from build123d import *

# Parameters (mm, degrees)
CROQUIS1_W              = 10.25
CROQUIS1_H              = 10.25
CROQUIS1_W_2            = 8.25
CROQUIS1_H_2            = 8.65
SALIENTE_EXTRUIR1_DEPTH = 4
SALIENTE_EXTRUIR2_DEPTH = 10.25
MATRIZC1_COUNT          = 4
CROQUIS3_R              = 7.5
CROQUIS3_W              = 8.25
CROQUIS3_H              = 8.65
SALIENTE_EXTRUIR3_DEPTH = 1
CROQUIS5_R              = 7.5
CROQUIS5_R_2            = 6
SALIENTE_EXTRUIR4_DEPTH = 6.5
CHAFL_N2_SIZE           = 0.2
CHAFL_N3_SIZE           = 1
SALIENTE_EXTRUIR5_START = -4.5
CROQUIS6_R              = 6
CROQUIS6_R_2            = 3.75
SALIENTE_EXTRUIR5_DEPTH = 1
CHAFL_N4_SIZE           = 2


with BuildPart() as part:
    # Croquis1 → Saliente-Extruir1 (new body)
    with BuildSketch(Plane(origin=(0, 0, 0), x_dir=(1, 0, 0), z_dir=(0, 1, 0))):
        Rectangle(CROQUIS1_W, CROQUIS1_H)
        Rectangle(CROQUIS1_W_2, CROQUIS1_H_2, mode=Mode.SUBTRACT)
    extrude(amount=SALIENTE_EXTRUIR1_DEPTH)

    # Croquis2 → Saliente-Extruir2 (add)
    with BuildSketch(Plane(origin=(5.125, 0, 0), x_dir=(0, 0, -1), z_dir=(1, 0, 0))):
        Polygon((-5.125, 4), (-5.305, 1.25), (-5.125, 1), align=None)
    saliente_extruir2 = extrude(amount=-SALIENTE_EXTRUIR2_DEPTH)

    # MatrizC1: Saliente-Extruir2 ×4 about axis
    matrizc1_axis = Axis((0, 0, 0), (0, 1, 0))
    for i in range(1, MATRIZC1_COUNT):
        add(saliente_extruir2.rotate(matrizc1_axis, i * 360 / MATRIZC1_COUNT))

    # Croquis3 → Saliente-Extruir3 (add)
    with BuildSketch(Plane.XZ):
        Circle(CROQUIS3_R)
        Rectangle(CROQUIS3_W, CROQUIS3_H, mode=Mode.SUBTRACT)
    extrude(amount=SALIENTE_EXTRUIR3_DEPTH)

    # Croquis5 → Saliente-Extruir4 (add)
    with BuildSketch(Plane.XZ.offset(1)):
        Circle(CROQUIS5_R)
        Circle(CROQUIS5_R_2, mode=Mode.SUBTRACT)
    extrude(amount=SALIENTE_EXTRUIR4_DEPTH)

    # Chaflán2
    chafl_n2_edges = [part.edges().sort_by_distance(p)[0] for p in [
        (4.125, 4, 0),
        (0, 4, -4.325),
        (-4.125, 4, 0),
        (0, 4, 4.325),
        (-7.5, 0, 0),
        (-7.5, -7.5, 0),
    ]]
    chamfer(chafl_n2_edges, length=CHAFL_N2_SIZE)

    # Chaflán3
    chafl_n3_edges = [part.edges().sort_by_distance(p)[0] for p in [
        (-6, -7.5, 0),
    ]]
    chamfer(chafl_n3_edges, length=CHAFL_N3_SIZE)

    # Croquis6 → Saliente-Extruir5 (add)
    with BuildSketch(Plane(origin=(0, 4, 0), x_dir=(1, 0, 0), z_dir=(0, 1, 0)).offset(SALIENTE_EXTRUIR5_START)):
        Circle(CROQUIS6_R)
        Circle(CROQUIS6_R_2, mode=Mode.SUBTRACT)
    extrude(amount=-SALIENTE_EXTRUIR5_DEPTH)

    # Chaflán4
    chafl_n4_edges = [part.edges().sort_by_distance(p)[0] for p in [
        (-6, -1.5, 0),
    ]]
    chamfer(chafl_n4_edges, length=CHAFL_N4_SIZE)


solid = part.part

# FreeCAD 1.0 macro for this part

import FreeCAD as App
import Part
import Sketcher

V = App.Vector


def edges_at(feature, points):
    """Names of the edges that pass closest to the given points."""
    edges = feature.Shape.Edges
    near = lambda p: min(range(len(edges)), key=lambda i: edges[i].distToShape(Part.Vertex(*p))[0])
    return sorted({f"Edge{near(p) + 1}" for p in points})

doc = App.newDocument("Part")
params = doc.addObject("Spreadsheet::Sheet", "Params")
for row, (alias, value) in enumerate([
    ("sketch1_width", "10.25 mm"),
    ("sketch1_height", "8.65 mm"),
    ("pad1_length", "4 mm"),
    ("sketch2_width", "3 mm"),
    ("pad2_length", "10.25 mm"),
    ("sketch3_diameter", "15 mm"),
    ("sketch3_width", "8.25 mm"),
    ("sketch3_height", "8.65 mm"),
    ("pad3_length", "1 mm"),
    ("sketch4_diameter", "15 mm"),
    ("sketch4_diameter2", "12 mm"),
    ("pad4_length", "6.5 mm"),
    ("chamfer_size", "0.2 mm"),
    ("chamfer2_size", "1 mm"),
    ("sketch5_diameter", "12 mm"),
    ("sketch5_diameter2", "7.5 mm"),
    ("pad5_length", "1 mm"),
    ("chamfer3_size", "2 mm"),
], start=1):
    params.set(f"A{row}", alias)
    params.set(f"B{row}", "=" + value)
    params.setAlias(f"B{row}", alias)

body = doc.addObject("PartDesign::Body", "Body")

sketch1 = body.newObject("Sketcher::SketchObject", "Sketch")
sketch1.AttachmentSupport = (doc.getObject("XZ_Plane"), [""])
sketch1.MapMode = "FlatFace"
sketch1.addGeometry(Part.LineSegment(V(-5.125, -5.125, 0), V(-5.125, 5.125, 0)), False)
sketch1.addGeometry(Part.LineSegment(V(-5.125, 5.125, 0), V(5.125, 5.125, 0)), False)
sketch1.addGeometry(Part.LineSegment(V(5.125, 5.125, 0), V(5.125, -5.125, 0)), False)
sketch1.addGeometry(Part.LineSegment(V(5.125, -5.125, 0), V(-5.125, -5.125, 0)), False)
sketch1.addGeometry(Part.LineSegment(V(4.125, 4.325, 0), V(-4.125, 4.325, 0)), False)
sketch1.addGeometry(Part.LineSegment(V(-4.125, 4.325, 0), V(-4.125, -4.325, 0)), False)
sketch1.addGeometry(Part.LineSegment(V(-4.125, -4.325, 0), V(4.125, -4.325, 0)), False)
sketch1.addGeometry(Part.LineSegment(V(4.125, -4.325, 0), V(4.125, 4.325, 0)), False)
sketch1.addConstraint(Sketcher.Constraint("Coincident", 0, 2, 1, 1))
sketch1.addConstraint(Sketcher.Constraint("Coincident", 1, 2, 2, 1))
sketch1.addConstraint(Sketcher.Constraint("Coincident", 2, 2, 3, 1))
sketch1.addConstraint(Sketcher.Constraint("Coincident", 3, 2, 0, 1))
sketch1.addConstraint(Sketcher.Constraint("Coincident", 4, 2, 5, 1))
sketch1.addConstraint(Sketcher.Constraint("Coincident", 5, 2, 6, 1))
sketch1.addConstraint(Sketcher.Constraint("Coincident", 6, 2, 7, 1))
sketch1.addConstraint(Sketcher.Constraint("Coincident", 7, 2, 4, 1))
sketch1.addConstraint(Sketcher.Constraint("Vertical", 0))
sketch1.addConstraint(Sketcher.Constraint("Horizontal", 1))
sketch1.addConstraint(Sketcher.Constraint("Vertical", 2))
sketch1.addConstraint(Sketcher.Constraint("Horizontal", 3))
sketch1.addConstraint(Sketcher.Constraint("Horizontal", 4))
sketch1.addConstraint(Sketcher.Constraint("Vertical", 5))
sketch1.addConstraint(Sketcher.Constraint("Horizontal", 6))
sketch1.addConstraint(Sketcher.Constraint("Vertical", 7))
sketch1.addConstraint(Sketcher.Constraint("Symmetric", 0, 2, 2, 2, -1, 1))
sketch1.addConstraint(Sketcher.Constraint("Symmetric", 4, 2, 6, 2, -1, 1))
sketch1.addConstraint(Sketcher.Constraint("Equal", 3, 0))
sketch1.addConstraint(Sketcher.Constraint("DistanceX", 0, 2, 4, 2, 1.0))
sketch1.addConstraint(Sketcher.Constraint("DistanceX", 1, 1, 1, 2, 10.25))
sketch1.addConstraint(Sketcher.Constraint("DistanceY", 5, 2, 5, 1, 8.65))
sketch1.setExpression("Constraints[20]", "Params.sketch1_width")
sketch1.setExpression("Constraints[21]", "Params.sketch1_height")
pad1 = body.newObject("PartDesign::Pad", "Pad")
pad1.Profile = sketch1
pad1.setExpression("Length", "Params.pad1_length")
pad1.Reversed = True

sketch2 = body.newObject("Sketcher::SketchObject", "Sketch001")
sketch2.AttachmentSupport = (doc.getObject("YZ_Plane"), [""])
sketch2.MapMode = "FlatFace"
sketch2.AttachmentOffset = App.Placement(V(0, 0, 5.125), App.Rotation())
sketch2.addGeometry(Part.LineSegment(V(4, 5.125, 0), V(1.25, 5.305, 0)), False)
sketch2.addGeometry(Part.LineSegment(V(1.25, 5.305, 0), V(1, 5.125, 0)), False)
sketch2.addGeometry(Part.LineSegment(V(1, 5.125, 0), V(4, 5.125, 0)), False)
sketch2.addConstraint(Sketcher.Constraint("Coincident", 0, 2, 1, 1))
sketch2.addConstraint(Sketcher.Constraint("Coincident", 1, 2, 2, 1))
sketch2.addConstraint(Sketcher.Constraint("Coincident", 2, 2, 0, 1))
sketch2.addConstraint(Sketcher.Constraint("Horizontal", 2))
sketch2.addConstraint(Sketcher.Constraint("DistanceX", 2, 1, 2, 2, 3.0))
sketch2.addConstraint(Sketcher.Constraint("DistanceX", -1, 1, 1, 2, 1.0))
sketch2.addConstraint(Sketcher.Constraint("DistanceX", -1, 1, 0, 2, 1.25))
sketch2.addConstraint(Sketcher.Constraint("DistanceY", 1, 2, 0, 2, 0.18))
sketch2.addConstraint(Sketcher.Constraint("DistanceY", -1, 1, 0, 2, 5.305))
sketch2.setExpression("Constraints[4]", "Params.sketch2_width")
pad2 = body.newObject("PartDesign::Pad", "Pad001")
pad2.Profile = sketch2
pad2.setExpression("Length", "Params.pad2_length")
pad2.Reversed = True
doc.recompute()

polarpattern = body.newObject("PartDesign::PolarPattern", "PolarPattern")
polarpattern.Originals = [pad2]
polarpattern.Axis = (doc.getObject("Y_Axis"), [""])
polarpattern.Angle = 360
polarpattern.Occurrences = 4
body.Tip = polarpattern

sketch3 = body.newObject("Sketcher::SketchObject", "Sketch002")
sketch3.AttachmentSupport = (doc.getObject("XZ_Plane"), [""])
sketch3.MapMode = "FlatFace"
sketch3.addGeometry(Part.Circle(V(0, 0, 0), V(0, 0, 1), 7.5), False)
sketch3.addGeometry(Part.LineSegment(V(4.125, -4.325, 0), V(-4.125, -4.325, 0)), False)
sketch3.addGeometry(Part.LineSegment(V(-4.125, -4.325, 0), V(-4.125, 4.325, 0)), False)
sketch3.addGeometry(Part.LineSegment(V(-4.125, 4.325, 0), V(4.125, 4.325, 0)), False)
sketch3.addGeometry(Part.LineSegment(V(4.125, 4.325, 0), V(4.125, -4.325, 0)), False)
sketch3.addConstraint(Sketcher.Constraint("Coincident", 1, 2, 2, 1))
sketch3.addConstraint(Sketcher.Constraint("Coincident", 2, 2, 3, 1))
sketch3.addConstraint(Sketcher.Constraint("Coincident", 3, 2, 4, 1))
sketch3.addConstraint(Sketcher.Constraint("Coincident", 4, 2, 1, 1))
sketch3.addConstraint(Sketcher.Constraint("Horizontal", 1))
sketch3.addConstraint(Sketcher.Constraint("Vertical", 2))
sketch3.addConstraint(Sketcher.Constraint("Horizontal", 3))
sketch3.addConstraint(Sketcher.Constraint("Vertical", 4))
sketch3.addConstraint(Sketcher.Constraint("Coincident", 0, 3, -1, 1))
sketch3.addConstraint(Sketcher.Constraint("Symmetric", 1, 2, 3, 2, -1, 1))
sketch3.addConstraint(Sketcher.Constraint("Diameter", 0, 15.0))
sketch3.addConstraint(Sketcher.Constraint("DistanceX", 1, 2, 1, 1, 8.25))
sketch3.addConstraint(Sketcher.Constraint("DistanceY", 2, 1, 2, 2, 8.65))
sketch3.setExpression("Constraints[10]", "Params.sketch3_diameter")
sketch3.setExpression("Constraints[11]", "Params.sketch3_width")
sketch3.setExpression("Constraints[12]", "Params.sketch3_height")
pad3 = body.newObject("PartDesign::Pad", "Pad002")
pad3.Profile = sketch3
pad3.setExpression("Length", "Params.pad3_length")

sketch4 = body.newObject("Sketcher::SketchObject", "Sketch003")
sketch4.AttachmentSupport = (doc.getObject("XZ_Plane"), [""])
sketch4.MapMode = "FlatFace"
sketch4.AttachmentOffset = App.Placement(V(0, 0, 1), App.Rotation())
sketch4.addGeometry(Part.Circle(V(0, 0, 0), V(0, 0, 1), 7.5), False)
sketch4.addGeometry(Part.Circle(V(0, 0, 0), V(0, 0, 1), 6), False)
sketch4.addConstraint(Sketcher.Constraint("Coincident", 0, 3, -1, 1))
sketch4.addConstraint(Sketcher.Constraint("Coincident", 1, 3, -1, 1))
sketch4.addConstraint(Sketcher.Constraint("Diameter", 0, 15.0))
sketch4.addConstraint(Sketcher.Constraint("Diameter", 1, 12.0))
sketch4.setExpression("Constraints[2]", "Params.sketch4_diameter")
sketch4.setExpression("Constraints[3]", "Params.sketch4_diameter2")
pad4 = body.newObject("PartDesign::Pad", "Pad003")
pad4.Profile = sketch4
pad4.setExpression("Length", "Params.pad4_length")
doc.recompute()

chamfer = body.newObject("PartDesign::Chamfer", "Chamfer")
chamfer.Base = (pad4, edges_at(pad4, [
    (4.125, 4, 0),
    (0, 4, -4.325),
    (-4.125, 4, 0),
    (0, 4, 4.325),
    (-7.5, 0, 0),
    (-7.5, -7.5, 0),
]))
chamfer.setExpression("Size", "Params.chamfer_size")
doc.recompute()

chamfer2 = body.newObject("PartDesign::Chamfer", "Chamfer001")
chamfer2.Base = (chamfer, edges_at(chamfer, [(-6, -7.5, 0)]))
chamfer2.setExpression("Size", "Params.chamfer2_size")

sketch5 = body.newObject("Sketcher::SketchObject", "Sketch004")
sketch5.AttachmentSupport = (doc.getObject("XZ_Plane"), [""])
sketch5.MapMode = "FlatFace"
sketch5.AttachmentOffset = App.Placement(V(0, 0, 0.5), App.Rotation())
sketch5.addGeometry(Part.Circle(V(0, 0, 0), V(0, 0, 1), 6), False)
sketch5.addGeometry(Part.Circle(V(0, 0, 0), V(0, 0, 1), 3.75), False)
sketch5.addConstraint(Sketcher.Constraint("Coincident", 0, 3, -1, 1))
sketch5.addConstraint(Sketcher.Constraint("Coincident", 1, 3, -1, 1))
sketch5.addConstraint(Sketcher.Constraint("Diameter", 0, 12.0))
sketch5.addConstraint(Sketcher.Constraint("Diameter", 1, 7.5))
sketch5.setExpression("Constraints[2]", "Params.sketch5_diameter")
sketch5.setExpression("Constraints[3]", "Params.sketch5_diameter2")
pad5 = body.newObject("PartDesign::Pad", "Pad004")
pad5.Profile = sketch5
pad5.setExpression("Length", "Params.pad5_length")
doc.recompute()

chamfer3 = body.newObject("PartDesign::Chamfer", "Chamfer002")
chamfer3.Base = (pad5, edges_at(pad5, [(-6, -1.5, 0)]))
chamfer3.setExpression("Size", "Params.chamfer3_size")

doc.recompute()
